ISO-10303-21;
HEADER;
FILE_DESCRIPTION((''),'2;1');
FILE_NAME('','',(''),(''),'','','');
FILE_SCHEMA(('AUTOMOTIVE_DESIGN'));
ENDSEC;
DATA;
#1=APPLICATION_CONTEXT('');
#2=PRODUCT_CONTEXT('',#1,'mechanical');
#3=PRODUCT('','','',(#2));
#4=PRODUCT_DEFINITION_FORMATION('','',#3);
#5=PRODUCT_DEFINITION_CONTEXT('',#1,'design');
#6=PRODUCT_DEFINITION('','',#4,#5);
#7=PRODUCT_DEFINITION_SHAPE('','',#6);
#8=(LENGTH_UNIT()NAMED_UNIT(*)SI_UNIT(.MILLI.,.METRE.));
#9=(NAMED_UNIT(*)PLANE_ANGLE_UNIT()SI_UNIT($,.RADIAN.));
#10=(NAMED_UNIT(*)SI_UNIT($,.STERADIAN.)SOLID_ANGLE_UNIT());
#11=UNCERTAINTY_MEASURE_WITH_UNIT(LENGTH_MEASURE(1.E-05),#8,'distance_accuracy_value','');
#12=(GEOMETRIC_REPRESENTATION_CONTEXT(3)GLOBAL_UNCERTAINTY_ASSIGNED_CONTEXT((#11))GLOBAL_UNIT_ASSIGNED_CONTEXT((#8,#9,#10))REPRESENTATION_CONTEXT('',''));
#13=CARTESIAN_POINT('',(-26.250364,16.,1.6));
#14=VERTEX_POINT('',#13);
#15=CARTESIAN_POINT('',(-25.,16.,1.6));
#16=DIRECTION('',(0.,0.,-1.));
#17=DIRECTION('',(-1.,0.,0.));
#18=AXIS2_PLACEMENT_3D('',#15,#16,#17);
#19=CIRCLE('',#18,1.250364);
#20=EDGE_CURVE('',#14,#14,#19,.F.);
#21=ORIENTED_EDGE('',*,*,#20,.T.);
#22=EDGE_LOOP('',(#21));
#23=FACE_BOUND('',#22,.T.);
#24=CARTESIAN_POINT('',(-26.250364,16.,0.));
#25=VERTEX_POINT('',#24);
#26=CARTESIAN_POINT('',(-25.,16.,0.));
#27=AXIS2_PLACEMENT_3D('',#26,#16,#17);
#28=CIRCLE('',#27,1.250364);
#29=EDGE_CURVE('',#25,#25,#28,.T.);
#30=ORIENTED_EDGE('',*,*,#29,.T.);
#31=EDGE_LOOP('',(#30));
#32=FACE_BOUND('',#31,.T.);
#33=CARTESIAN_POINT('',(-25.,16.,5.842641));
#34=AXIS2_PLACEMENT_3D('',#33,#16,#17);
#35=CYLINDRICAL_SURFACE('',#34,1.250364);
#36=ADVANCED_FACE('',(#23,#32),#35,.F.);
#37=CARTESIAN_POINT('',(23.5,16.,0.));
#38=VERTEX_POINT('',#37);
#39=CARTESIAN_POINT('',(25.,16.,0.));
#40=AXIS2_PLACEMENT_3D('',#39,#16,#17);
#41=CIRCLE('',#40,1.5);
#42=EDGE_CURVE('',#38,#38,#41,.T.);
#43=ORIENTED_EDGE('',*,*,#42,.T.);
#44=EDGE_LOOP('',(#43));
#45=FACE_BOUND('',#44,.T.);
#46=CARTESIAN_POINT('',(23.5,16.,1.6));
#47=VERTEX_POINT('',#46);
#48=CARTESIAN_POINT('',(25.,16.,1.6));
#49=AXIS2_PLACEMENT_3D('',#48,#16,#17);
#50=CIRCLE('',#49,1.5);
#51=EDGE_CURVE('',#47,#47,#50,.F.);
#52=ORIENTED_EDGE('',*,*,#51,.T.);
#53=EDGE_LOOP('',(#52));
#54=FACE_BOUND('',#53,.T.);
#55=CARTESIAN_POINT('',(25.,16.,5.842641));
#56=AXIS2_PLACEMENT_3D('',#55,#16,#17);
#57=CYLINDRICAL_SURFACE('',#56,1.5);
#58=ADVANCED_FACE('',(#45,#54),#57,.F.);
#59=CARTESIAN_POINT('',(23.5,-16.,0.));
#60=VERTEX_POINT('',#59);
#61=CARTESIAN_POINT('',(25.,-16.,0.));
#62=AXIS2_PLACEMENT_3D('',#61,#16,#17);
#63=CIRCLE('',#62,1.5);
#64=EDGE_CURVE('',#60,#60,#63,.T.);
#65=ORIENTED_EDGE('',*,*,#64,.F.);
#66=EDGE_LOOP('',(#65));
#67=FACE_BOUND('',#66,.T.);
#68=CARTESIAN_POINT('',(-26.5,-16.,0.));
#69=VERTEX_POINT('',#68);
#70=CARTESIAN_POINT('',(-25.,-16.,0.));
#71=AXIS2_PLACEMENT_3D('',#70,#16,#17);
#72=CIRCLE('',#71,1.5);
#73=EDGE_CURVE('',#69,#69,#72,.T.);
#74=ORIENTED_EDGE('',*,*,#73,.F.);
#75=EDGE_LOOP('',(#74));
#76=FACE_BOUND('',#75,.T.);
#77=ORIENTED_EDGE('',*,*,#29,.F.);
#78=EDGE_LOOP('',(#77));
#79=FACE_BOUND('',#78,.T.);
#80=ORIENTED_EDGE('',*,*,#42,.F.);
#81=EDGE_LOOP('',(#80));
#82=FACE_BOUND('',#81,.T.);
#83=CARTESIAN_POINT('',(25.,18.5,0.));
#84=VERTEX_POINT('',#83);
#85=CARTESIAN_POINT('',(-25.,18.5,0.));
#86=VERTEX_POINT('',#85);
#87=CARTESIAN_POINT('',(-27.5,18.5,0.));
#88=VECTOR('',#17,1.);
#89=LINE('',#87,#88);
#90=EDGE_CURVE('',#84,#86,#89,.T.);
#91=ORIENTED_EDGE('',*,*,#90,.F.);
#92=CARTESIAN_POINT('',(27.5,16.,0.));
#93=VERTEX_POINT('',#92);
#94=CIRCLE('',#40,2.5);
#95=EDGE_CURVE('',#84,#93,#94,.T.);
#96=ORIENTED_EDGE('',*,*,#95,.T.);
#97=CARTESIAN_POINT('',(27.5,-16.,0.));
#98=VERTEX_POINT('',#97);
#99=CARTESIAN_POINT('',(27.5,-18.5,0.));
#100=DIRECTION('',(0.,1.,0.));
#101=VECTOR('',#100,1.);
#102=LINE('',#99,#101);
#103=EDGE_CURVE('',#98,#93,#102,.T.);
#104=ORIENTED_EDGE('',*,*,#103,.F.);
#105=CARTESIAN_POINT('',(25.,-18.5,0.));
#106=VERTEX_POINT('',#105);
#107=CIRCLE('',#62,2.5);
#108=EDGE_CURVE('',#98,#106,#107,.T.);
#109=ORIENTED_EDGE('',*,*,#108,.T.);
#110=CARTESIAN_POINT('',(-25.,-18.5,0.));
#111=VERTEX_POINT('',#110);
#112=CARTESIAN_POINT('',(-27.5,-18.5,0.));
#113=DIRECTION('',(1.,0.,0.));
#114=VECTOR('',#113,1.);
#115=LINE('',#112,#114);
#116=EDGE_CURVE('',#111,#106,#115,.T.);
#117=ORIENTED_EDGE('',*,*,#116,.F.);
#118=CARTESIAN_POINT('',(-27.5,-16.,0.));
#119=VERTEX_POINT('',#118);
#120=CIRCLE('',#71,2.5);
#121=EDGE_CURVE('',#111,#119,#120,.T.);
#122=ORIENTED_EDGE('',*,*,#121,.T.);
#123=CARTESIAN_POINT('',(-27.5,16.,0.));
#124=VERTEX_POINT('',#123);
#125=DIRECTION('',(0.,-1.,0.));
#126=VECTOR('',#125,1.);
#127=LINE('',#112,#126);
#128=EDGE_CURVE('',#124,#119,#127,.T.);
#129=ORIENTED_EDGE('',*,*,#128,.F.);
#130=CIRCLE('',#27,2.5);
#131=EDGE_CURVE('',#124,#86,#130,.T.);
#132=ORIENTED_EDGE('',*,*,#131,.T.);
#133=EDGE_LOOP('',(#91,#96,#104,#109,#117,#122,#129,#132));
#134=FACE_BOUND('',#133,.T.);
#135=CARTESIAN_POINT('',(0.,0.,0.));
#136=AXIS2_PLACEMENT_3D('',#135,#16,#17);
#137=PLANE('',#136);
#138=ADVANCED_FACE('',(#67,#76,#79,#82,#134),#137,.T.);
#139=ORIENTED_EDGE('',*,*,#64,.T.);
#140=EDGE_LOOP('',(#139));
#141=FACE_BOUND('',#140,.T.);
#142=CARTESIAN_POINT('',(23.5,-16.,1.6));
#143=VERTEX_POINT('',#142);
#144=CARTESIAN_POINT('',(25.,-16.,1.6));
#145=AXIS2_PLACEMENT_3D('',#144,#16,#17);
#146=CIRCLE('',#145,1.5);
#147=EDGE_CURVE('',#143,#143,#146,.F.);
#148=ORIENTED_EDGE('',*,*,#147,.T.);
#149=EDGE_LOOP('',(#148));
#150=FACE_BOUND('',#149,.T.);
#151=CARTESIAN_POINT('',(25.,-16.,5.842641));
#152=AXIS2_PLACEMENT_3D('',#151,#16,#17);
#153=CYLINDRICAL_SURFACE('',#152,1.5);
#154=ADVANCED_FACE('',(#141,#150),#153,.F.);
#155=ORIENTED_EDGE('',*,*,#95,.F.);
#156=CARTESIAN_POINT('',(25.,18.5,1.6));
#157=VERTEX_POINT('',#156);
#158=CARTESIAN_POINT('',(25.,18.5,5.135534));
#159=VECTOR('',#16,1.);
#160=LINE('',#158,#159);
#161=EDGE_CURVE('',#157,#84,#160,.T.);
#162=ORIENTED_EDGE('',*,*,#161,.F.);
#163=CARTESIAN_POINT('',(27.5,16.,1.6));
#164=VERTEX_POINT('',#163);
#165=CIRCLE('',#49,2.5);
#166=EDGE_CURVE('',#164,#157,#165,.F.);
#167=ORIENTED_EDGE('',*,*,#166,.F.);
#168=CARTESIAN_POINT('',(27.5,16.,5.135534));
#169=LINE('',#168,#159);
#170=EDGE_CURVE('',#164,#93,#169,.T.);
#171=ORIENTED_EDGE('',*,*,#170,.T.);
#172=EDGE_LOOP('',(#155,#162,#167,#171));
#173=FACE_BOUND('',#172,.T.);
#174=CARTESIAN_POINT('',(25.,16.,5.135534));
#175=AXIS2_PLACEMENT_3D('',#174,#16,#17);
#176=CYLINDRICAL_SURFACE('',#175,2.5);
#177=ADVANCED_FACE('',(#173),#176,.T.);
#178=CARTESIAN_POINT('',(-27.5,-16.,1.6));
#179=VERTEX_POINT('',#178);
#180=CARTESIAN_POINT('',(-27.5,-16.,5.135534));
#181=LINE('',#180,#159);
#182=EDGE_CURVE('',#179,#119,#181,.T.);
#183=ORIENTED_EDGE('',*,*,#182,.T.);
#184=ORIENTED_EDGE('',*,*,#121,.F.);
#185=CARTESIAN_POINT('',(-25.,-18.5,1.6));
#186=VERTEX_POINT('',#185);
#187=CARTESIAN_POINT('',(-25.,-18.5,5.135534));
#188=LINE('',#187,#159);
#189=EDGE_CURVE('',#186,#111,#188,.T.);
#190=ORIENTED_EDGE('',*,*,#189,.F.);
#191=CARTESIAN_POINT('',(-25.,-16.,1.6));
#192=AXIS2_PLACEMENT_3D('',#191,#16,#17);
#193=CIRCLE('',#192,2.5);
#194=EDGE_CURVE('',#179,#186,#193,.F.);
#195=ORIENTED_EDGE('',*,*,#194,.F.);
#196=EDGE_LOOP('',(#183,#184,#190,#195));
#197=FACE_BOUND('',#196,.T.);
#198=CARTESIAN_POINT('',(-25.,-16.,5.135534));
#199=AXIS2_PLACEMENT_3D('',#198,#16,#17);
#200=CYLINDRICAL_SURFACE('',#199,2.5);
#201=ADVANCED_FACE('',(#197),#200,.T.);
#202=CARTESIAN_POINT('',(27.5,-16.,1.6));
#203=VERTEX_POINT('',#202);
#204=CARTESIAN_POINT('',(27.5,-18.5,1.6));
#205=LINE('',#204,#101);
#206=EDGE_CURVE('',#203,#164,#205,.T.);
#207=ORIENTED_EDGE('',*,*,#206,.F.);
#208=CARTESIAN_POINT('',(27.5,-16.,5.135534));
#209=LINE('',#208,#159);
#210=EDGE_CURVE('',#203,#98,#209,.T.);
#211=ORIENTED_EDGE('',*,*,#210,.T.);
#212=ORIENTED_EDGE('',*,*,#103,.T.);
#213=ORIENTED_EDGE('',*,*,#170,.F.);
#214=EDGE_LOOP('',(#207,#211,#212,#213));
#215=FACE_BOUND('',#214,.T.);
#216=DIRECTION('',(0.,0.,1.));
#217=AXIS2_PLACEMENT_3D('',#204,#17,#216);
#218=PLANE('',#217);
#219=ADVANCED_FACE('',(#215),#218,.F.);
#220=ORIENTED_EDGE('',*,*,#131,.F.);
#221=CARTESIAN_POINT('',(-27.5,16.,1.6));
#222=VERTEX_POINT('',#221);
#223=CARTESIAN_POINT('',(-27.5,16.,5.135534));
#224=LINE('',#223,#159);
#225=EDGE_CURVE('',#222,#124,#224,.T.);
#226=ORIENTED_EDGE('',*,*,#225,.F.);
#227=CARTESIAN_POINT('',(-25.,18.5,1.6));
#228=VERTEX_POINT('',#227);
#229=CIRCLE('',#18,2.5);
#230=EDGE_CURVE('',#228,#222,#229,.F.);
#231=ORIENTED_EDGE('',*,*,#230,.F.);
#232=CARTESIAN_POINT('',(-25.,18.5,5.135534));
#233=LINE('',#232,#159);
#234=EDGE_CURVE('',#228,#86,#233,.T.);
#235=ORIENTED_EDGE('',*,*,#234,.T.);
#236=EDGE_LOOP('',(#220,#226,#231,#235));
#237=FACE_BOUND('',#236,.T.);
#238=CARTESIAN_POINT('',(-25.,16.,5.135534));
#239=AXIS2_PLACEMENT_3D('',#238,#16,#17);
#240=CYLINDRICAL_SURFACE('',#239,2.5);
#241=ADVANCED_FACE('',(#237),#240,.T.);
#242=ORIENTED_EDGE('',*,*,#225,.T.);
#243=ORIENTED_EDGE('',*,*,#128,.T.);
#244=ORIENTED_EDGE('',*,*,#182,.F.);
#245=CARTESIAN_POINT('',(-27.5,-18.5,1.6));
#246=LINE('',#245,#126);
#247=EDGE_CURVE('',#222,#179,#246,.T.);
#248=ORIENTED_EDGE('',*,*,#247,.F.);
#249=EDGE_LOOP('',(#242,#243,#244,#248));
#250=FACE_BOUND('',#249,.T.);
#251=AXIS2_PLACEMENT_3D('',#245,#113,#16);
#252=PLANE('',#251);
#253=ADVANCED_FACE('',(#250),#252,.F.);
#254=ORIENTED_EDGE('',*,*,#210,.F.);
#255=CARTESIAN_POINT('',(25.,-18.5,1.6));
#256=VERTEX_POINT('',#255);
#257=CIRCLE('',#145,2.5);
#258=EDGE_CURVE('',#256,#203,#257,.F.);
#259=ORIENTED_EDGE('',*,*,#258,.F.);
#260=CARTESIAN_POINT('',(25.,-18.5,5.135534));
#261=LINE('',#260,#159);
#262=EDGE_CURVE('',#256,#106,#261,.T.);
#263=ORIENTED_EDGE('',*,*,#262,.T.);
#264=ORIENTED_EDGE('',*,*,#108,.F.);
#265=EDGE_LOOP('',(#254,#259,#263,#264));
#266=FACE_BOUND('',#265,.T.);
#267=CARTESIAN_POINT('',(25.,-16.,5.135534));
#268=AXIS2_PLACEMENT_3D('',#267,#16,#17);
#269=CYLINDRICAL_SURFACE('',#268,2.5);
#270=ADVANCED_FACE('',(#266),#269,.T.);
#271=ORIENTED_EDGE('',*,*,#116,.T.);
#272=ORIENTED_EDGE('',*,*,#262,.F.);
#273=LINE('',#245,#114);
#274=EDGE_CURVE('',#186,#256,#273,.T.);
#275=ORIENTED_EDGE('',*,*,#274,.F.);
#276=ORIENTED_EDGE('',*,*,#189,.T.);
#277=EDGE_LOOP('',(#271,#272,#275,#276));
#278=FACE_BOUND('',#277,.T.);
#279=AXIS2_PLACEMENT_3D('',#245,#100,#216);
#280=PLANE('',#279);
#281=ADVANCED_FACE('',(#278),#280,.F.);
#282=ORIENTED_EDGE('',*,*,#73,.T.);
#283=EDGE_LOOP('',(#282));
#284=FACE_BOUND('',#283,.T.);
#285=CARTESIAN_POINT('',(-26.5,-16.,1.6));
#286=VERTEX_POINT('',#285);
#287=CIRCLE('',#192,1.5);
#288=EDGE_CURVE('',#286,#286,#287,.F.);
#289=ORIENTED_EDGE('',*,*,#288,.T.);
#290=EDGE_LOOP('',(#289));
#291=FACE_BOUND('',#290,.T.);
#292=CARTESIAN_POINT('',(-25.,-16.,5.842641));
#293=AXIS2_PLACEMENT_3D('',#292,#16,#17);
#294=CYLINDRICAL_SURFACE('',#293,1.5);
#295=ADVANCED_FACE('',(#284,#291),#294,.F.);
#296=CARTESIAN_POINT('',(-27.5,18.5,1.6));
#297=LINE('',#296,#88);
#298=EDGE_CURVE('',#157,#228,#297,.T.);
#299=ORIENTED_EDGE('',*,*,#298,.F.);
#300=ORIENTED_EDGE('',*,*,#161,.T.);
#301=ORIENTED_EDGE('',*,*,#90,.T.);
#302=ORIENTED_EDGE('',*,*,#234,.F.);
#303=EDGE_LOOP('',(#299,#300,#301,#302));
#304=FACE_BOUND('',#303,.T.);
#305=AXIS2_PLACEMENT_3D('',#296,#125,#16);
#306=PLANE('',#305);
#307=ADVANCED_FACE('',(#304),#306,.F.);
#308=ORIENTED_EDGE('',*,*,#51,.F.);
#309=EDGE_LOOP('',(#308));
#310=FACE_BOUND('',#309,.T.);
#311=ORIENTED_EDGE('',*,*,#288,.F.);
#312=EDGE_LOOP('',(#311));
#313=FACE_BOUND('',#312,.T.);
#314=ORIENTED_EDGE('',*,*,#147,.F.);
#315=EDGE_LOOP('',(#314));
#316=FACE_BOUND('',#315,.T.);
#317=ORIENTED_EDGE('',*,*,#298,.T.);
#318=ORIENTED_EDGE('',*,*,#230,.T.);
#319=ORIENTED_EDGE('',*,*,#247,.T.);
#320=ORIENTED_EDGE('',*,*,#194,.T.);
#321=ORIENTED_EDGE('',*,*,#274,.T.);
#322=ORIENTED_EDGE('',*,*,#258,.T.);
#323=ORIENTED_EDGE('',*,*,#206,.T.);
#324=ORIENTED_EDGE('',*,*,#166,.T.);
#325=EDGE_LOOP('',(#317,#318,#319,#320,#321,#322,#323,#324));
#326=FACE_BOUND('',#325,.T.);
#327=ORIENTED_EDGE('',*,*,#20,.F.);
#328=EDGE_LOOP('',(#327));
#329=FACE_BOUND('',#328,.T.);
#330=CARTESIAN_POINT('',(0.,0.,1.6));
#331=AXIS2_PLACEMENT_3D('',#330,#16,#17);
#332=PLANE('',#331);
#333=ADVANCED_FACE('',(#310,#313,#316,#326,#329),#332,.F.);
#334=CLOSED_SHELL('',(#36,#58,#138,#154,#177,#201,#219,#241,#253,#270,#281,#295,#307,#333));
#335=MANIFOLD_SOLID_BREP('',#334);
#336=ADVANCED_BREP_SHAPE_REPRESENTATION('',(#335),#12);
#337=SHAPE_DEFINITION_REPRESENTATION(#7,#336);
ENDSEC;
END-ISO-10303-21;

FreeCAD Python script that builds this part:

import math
import FreeCAD as App
import Part
import Sketcher
from FreeCAD import Vector
Q = App.Units.Quantity


def add_polygon(sketch, points):
    """Adds a closed chain of lines whose ends are joined by coincident constraints."""
    first, n = sketch.GeometryCount, len(points)
    for a, b in zip(points, points[1:] + points[:1]):
        sketch.addGeometry(Part.LineSegment(App.Vector(*a, 0), App.Vector(*b, 0)), False)
    for i in range(n):
        sketch.addConstraint(Sketcher.Constraint("Coincident", first + i, 2, first + (i + 1) % n, 1))

doc = App.newDocument("Part")
params = doc.addObject("Spreadsheet::Sheet", "Params")
for row, (alias, value) in enumerate([
    ("sketch1_width", "55 mm"),
    ("sketch1_height", "37 mm"),
    ("pad1_length", "1.6 mm"),
    ("sketch2_radius", "2.5 mm"),
    ("pocket1_length", "1.6 mm"),
    ("sketch3_diameter", "3 mm"),
    ("pocket2_length", "1.6 mm"),
], start=1):
    params.set(f"A{row}", alias)
    params.set(f"B{row}", "=" + value)
    params.setAlias(f"B{row}", alias)

body = doc.addObject("PartDesign::Body", "Body")

sketch1 = body.newObject("Sketcher::SketchObject", "Sketch")
sketch1.AttachmentSupport = (doc.getObject("XY_Plane"), [""])
sketch1.MapMode = "FlatFace"
add_polygon(sketch1, [(-28, 18), (-28, -18), (28, -18), (28, 18)])
sketch1.addConstraint(Sketcher.Constraint("Vertical", 0))
sketch1.addConstraint(Sketcher.Constraint("Horizontal", 1))
sketch1.addConstraint(Sketcher.Constraint("Vertical", 2))
sketch1.addConstraint(Sketcher.Constraint("Horizontal", 3))
sketch1.addConstraint(Sketcher.Constraint("Symmetric", 0, 2, 2, 2, -1, 1))
sketch1.addConstraint(Sketcher.Constraint("DistanceX", 1, 1, 1, 2, Q("55 mm")))
sketch1.addConstraint(Sketcher.Constraint("DistanceY", 0, 2, 0, 1, Q("37 mm")))
sketch1.setExpression("Constraints[9]", "Params.sketch1_width")
sketch1.setExpression("Constraints[10]", "Params.sketch1_height")
pad1 = body.newObject("PartDesign::Pad", "Pad")
pad1.Profile = sketch1
pad1.setExpression("Length", "Params.pad1_length")

sketch2 = body.newObject("Sketcher::SketchObject", "Sketch001")
sketch2.AttachmentSupport = (doc.getObject("XY_Plane"), [""])
sketch2.MapMode = "FlatFace"
sketch2.addGeometry(Part.LineSegment(Vector(-25, 18.5, 0), Vector(-27.5, 18.5, 0)), False)
sketch2.addGeometry(Part.LineSegment(Vector(-27.5, 18.5, 0), Vector(-27.5, 16, 0)), False)
sketch2.addGeometry(Part.ArcOfCircle(Part.Circle(Vector(-25, 16, 0), Vector(0, 0, 1), 2.5), math.radians(90), math.radians(180)), False)
sketch2.addGeometry(Part.LineSegment(Vector(27.5, 16, 0), Vector(27.5, 18.5, 0)), False)
sketch2.addGeometry(Part.LineSegment(Vector(27.5, 18.5, 0), Vector(25, 18.5, 0)), False)
sketch2.addGeometry(Part.ArcOfCircle(Part.Circle(Vector(25, 16, 0), Vector(0, 0, 1), 2.5), math.radians(0), math.radians(90)), False)
sketch2.addGeometry(Part.LineSegment(Vector(27.5, -18.5, 0), Vector(27.5, -16, 0)), False)
sketch2.addGeometry(Part.ArcOfCircle(Part.Circle(Vector(25, -16, 0), Vector(0, 0, 1), 2.5), math.radians(-90), math.radians(0)), False)
sketch2.addGeometry(Part.LineSegment(Vector(25, -18.5, 0), Vector(27.5, -18.5, 0)), False)
sketch2.addGeometry(Part.LineSegment(Vector(-27.5, -18.5, 0), Vector(-25, -18.5, 0)), False)
sketch2.addGeometry(Part.ArcOfCircle(Part.Circle(Vector(-25, -16, 0), Vector(0, 0, 1), 2.5), math.radians(180), math.radians(270)), False)
sketch2.addGeometry(Part.LineSegment(Vector(-27.5, -16, 0), Vector(-27.5, -18.5, 0)), False)
sketch2.addConstraint(Sketcher.Constraint("Coincident", 0, 2, 1, 1))
sketch2.addConstraint(Sketcher.Constraint("Tangent", 1, 2, 2, 2))
sketch2.addConstraint(Sketcher.Constraint("Tangent", 2, 1, 0, 1))
sketch2.addConstraint(Sketcher.Constraint("Coincident", 3, 2, 4, 1))
sketch2.addConstraint(Sketcher.Constraint("Tangent", 4, 2, 5, 2))
sketch2.addConstraint(Sketcher.Constraint("Tangent", 5, 1, 3, 1))
sketch2.addConstraint(Sketcher.Constraint("Tangent", 6, 2, 7, 2))
sketch2.addConstraint(Sketcher.Constraint("Tangent", 7, 1, 8, 1))
sketch2.addConstraint(Sketcher.Constraint("Coincident", 8, 2, 6, 1))
sketch2.addConstraint(Sketcher.Constraint("Tangent", 9, 2, 10, 2))
sketch2.addConstraint(Sketcher.Constraint("Tangent", 10, 1, 11, 1))
sketch2.addConstraint(Sketcher.Constraint("Coincident", 11, 2, 9, 1))
sketch2.addConstraint(Sketcher.Constraint("Horizontal", 0))
sketch2.addConstraint(Sketcher.Constraint("Vertical", 1))
sketch2.addConstraint(Sketcher.Constraint("Vertical", 3))
sketch2.addConstraint(Sketcher.Constraint("Horizontal", 4))
sketch2.addConstraint(Sketcher.Constraint("Vertical", 6))
sketch2.addConstraint(Sketcher.Constraint("Horizontal", 8))
sketch2.addConstraint(Sketcher.Constraint("Horizontal", 9))
sketch2.addConstraint(Sketcher.Constraint("Vertical", 11))
sketch2.addConstraint(Sketcher.Constraint("Equal", 2, 5))
sketch2.addConstraint(Sketcher.Constraint("Equal", 5, 7))
sketch2.addConstraint(Sketcher.Constraint("Equal", 7, 10))
sketch2.addConstraint(Sketcher.Constraint("Symmetric", 2, 3, 7, 3, -1, 1))
sketch2.addConstraint(Sketcher.Constraint("Symmetric", 5, 3, 10, 3, -1, 1))
sketch2.addConstraint(Sketcher.Constraint("Symmetric", 2, 3, 5, 3, -2))
sketch2.addConstraint(Sketcher.Constraint("Radius", 2, Q("2.5 mm")))
sketch2.addConstraint(Sketcher.Constraint("DistanceX", 2, 3, -1, 1, Q("25 mm")))
sketch2.addConstraint(Sketcher.Constraint("DistanceY", -1, 1, 2, 3, Q("16 mm")))
sketch2.setExpression("Constraints[26]", "Params.sketch2_radius")
pocket1 = body.newObject("PartDesign::Pocket", "Pocket")
pocket1.Profile = sketch2
pocket1.setExpression("Length", "Params.pocket1_length")
pocket1.Reversed = True

sketch3 = body.newObject("Sketcher::SketchObject", "Sketch002")
sketch3.AttachmentSupport = (doc.getObject("XY_Plane"), [""])
sketch3.MapMode = "FlatFace"
sketch3.addGeometry(Part.Circle(Vector(-25, 16, 0), Vector(0, 0, 1), 1.3), False)
sketch3.addGeometry(Part.Circle(Vector(-25, -16, 0), Vector(0, 0, 1), 1.5), False)
sketch3.addGeometry(Part.Circle(Vector(25, 16, 0), Vector(0, 0, 1), 1.5), False)
sketch3.addGeometry(Part.Circle(Vector(25, -16, 0), Vector(0, 0, 1), 1.5), False)
sketch3.addConstraint(Sketcher.Constraint("Equal", 1, 2))
sketch3.addConstraint(Sketcher.Constraint("Equal", 2, 3))
sketch3.addConstraint(Sketcher.Constraint("Symmetric", 1, 3, 2, 3, -1, 1))
sketch3.addConstraint(Sketcher.Constraint("Symmetric", 0, 3, 3, 3, -1, 1))
sketch3.addConstraint(Sketcher.Constraint("Symmetric", 0, 3, 2, 3, -2))
sketch3.addConstraint(Sketcher.Constraint("Diameter", 1, Q("3 mm")))
sketch3.addConstraint(Sketcher.Constraint("DistanceX", 0, 3, -1, 1, Q("25 mm")))
sketch3.addConstraint(Sketcher.Constraint("DistanceY", -1, 1, 0, 3, Q("16 mm")))
sketch3.addConstraint(Sketcher.Constraint("Diameter", 0, Q("2.500728 mm")))
sketch3.setExpression("Constraints[5]", "Params.sketch3_diameter")
pocket2 = body.newObject("PartDesign::Pocket", "Pocket001")
pocket2.Profile = sketch3
pocket2.setExpression("Length", "Params.pocket2_length")
pocket2.Reversed = True

doc.recompute()
